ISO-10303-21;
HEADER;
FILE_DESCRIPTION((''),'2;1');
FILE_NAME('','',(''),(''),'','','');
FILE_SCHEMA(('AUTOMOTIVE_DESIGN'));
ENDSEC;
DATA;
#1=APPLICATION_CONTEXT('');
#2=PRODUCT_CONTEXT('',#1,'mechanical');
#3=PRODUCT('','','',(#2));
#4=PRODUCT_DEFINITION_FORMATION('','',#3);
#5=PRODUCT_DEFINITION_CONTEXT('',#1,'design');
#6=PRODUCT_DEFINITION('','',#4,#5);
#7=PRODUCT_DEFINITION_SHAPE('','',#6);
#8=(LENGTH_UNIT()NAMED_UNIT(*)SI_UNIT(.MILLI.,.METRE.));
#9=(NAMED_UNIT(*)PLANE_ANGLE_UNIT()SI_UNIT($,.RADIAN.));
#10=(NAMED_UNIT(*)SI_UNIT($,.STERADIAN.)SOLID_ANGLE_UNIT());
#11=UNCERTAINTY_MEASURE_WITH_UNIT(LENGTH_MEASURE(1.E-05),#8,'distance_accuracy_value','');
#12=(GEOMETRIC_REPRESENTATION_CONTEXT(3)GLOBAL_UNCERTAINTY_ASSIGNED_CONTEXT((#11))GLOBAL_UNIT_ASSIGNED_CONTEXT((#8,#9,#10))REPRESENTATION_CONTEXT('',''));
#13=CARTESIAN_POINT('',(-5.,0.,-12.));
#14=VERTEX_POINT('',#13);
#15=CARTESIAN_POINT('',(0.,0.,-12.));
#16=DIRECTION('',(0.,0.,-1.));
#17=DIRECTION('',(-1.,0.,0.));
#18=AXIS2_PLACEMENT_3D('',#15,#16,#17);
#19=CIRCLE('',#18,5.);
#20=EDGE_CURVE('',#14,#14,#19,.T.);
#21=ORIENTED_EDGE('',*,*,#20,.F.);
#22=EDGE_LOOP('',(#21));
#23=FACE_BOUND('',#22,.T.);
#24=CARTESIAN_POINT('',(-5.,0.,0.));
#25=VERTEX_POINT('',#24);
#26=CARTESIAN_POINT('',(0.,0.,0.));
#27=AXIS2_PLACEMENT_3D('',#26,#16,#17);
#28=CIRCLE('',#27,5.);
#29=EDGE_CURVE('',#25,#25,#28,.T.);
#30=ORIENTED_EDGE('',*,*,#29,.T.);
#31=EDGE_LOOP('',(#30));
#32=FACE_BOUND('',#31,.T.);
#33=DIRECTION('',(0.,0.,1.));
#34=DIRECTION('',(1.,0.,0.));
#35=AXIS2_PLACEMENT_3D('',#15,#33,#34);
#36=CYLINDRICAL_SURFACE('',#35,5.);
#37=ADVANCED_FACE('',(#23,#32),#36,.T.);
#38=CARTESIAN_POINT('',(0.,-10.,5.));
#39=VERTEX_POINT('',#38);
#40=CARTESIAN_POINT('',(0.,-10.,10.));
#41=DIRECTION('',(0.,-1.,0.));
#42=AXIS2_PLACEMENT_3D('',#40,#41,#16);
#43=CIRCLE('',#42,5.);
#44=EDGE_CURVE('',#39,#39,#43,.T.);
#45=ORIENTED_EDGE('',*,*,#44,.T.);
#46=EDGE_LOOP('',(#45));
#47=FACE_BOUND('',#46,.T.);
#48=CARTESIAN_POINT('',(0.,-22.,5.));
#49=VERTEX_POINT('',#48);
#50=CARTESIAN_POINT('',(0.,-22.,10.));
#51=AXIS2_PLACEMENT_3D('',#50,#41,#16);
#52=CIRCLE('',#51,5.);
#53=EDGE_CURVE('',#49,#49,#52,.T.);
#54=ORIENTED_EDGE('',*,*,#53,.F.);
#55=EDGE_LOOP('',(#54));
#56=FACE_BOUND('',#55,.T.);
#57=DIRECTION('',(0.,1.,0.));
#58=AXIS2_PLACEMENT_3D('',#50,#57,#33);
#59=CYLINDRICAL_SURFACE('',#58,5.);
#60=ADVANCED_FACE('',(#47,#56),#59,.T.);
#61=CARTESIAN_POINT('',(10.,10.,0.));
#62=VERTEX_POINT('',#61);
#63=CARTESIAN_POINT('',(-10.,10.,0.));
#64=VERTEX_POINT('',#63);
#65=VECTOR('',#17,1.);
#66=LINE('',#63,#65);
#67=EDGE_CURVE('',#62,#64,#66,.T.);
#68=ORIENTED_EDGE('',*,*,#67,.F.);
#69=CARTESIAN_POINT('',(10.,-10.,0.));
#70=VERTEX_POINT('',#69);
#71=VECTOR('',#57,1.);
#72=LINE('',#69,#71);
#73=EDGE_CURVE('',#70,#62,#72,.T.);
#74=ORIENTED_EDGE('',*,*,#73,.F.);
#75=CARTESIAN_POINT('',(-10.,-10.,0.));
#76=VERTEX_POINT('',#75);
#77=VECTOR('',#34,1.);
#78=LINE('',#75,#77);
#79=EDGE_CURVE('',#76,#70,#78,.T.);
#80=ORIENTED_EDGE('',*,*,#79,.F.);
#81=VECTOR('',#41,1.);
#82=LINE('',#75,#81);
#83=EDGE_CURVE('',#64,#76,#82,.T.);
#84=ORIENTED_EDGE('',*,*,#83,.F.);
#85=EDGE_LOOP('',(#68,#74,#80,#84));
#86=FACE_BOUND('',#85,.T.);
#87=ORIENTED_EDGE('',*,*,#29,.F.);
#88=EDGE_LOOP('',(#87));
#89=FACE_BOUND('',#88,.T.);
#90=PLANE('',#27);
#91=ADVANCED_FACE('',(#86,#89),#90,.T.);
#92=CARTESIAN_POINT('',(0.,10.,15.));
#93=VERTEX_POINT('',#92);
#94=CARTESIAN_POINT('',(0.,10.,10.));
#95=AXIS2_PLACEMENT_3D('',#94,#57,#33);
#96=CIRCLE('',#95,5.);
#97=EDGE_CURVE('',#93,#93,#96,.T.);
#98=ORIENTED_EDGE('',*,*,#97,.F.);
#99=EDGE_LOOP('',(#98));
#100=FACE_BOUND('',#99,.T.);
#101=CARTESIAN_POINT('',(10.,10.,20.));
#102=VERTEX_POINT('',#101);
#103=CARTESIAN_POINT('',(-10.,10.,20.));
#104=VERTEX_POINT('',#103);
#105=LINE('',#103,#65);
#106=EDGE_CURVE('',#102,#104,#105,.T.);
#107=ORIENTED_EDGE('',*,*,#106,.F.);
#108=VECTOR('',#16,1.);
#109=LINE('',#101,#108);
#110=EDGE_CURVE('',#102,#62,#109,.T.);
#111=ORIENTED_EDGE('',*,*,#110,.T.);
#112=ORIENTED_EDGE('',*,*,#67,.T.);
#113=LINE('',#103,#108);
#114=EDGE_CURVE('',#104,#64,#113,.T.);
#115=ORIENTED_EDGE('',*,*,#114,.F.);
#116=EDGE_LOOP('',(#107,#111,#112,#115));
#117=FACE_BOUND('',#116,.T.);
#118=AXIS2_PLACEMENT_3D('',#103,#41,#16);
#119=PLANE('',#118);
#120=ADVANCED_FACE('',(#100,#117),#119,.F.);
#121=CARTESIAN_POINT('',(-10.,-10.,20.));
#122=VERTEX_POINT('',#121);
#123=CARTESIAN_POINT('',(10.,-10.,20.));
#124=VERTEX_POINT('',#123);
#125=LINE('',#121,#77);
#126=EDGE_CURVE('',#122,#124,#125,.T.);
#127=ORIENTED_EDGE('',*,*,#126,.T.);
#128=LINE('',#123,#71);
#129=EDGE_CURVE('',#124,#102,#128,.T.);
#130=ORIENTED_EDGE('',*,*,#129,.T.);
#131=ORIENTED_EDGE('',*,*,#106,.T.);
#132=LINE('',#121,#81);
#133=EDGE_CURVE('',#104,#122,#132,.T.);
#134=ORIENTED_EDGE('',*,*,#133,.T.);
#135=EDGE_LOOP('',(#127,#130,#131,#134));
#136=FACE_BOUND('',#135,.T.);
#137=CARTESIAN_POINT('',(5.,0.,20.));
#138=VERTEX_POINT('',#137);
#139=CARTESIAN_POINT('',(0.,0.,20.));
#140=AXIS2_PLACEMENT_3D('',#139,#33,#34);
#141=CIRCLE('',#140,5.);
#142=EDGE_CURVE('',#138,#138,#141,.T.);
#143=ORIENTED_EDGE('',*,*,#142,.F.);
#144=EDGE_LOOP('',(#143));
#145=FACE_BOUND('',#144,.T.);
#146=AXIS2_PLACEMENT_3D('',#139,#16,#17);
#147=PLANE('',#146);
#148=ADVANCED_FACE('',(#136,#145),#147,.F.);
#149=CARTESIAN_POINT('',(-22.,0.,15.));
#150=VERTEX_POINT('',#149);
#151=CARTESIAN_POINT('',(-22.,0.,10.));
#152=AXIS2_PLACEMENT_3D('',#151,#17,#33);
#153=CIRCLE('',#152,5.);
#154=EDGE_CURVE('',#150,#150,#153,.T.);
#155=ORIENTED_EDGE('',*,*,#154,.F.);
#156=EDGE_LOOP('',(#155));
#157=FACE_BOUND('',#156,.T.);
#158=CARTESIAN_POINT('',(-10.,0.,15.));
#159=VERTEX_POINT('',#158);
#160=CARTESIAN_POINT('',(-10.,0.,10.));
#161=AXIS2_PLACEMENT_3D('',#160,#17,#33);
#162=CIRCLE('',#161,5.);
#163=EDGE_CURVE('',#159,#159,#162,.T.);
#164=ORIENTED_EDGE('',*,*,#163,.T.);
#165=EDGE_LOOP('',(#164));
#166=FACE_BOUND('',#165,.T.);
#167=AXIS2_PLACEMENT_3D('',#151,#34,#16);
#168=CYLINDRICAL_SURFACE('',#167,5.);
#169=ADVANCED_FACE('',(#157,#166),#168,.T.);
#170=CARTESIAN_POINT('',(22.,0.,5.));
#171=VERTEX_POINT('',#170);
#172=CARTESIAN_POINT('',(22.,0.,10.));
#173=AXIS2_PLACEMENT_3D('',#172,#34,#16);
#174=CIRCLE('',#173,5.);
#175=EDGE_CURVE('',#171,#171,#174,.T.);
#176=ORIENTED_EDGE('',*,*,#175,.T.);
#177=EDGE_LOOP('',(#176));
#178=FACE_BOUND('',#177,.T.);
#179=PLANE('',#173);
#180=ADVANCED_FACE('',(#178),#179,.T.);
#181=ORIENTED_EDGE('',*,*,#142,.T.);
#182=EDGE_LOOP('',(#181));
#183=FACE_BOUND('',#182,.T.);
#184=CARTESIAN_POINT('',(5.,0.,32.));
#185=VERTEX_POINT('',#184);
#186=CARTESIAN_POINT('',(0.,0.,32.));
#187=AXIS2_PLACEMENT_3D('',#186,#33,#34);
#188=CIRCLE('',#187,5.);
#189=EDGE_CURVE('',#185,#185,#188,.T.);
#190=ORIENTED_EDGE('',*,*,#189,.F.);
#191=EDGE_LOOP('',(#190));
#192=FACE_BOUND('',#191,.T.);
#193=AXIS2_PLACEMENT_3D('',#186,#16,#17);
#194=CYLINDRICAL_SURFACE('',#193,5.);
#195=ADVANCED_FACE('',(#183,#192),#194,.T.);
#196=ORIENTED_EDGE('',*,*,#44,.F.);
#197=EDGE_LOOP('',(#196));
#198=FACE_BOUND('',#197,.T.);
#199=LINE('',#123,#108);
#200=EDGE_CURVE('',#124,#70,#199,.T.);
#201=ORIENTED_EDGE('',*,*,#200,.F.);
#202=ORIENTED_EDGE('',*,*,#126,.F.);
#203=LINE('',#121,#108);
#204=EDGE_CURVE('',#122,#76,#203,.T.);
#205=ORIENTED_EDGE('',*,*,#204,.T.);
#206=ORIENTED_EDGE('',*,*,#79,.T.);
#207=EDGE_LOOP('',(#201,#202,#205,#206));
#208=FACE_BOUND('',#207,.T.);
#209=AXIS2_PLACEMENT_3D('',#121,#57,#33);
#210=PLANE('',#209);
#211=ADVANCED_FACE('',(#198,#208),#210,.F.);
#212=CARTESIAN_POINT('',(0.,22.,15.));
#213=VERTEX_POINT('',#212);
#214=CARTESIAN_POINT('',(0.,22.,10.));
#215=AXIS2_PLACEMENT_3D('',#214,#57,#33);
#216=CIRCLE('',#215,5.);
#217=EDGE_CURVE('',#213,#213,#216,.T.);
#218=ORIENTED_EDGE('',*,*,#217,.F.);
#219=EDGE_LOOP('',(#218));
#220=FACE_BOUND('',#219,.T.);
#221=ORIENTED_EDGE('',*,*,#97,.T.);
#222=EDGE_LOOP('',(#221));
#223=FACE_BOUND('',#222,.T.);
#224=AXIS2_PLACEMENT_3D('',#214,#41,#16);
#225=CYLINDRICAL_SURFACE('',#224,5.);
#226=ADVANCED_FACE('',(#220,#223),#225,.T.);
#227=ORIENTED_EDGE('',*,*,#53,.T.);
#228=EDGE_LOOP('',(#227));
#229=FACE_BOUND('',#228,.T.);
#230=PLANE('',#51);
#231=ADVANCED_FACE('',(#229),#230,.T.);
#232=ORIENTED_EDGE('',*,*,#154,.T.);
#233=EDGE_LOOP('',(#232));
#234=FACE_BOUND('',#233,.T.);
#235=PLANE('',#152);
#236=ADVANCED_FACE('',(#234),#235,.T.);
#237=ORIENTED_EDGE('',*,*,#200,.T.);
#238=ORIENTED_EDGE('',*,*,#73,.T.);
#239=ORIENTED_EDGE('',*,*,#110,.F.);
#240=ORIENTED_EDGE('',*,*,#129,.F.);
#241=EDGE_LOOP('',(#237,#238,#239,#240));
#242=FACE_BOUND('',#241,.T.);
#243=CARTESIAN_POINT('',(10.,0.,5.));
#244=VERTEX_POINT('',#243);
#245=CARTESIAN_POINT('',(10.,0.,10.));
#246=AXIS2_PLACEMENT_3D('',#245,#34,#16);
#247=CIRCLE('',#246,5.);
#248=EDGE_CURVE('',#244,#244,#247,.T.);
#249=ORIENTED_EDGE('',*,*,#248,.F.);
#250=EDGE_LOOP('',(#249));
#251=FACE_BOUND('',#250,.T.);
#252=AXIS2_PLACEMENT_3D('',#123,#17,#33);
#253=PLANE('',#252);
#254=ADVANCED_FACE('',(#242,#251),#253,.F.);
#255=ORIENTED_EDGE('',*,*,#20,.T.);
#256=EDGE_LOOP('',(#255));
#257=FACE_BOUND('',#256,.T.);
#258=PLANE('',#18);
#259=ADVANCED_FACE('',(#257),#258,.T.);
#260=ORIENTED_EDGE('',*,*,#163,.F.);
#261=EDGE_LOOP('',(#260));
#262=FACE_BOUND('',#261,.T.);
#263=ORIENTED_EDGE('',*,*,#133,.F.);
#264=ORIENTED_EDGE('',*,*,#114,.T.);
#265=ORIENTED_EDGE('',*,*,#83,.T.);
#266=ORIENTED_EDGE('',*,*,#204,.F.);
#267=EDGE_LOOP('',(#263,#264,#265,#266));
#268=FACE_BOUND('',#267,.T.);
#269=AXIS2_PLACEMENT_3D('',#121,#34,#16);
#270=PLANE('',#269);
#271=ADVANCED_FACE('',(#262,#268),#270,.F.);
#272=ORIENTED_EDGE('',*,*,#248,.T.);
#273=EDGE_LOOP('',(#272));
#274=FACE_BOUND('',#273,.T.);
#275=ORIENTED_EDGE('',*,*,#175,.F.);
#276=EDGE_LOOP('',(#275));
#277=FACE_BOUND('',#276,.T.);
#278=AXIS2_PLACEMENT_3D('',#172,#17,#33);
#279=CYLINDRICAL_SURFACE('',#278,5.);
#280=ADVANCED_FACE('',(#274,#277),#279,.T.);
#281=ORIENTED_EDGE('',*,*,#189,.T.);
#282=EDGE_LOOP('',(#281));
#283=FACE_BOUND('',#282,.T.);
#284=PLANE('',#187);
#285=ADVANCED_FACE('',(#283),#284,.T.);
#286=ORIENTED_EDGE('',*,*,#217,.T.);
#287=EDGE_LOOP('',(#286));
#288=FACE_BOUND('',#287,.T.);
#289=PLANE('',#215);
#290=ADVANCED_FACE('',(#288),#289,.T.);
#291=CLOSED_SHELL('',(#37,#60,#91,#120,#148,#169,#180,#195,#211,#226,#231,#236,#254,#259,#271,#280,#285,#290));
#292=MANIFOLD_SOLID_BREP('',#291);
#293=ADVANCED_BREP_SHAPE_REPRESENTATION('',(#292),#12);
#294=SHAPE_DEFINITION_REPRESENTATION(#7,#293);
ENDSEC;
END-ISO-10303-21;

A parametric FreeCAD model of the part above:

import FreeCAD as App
import Part
import Sketcher
from FreeCAD import Vector
Q = App.Units.Quantity


def add_polygon(sketch, points):
    """Adds a closed chain of lines whose ends are joined by coincident constraints."""
    first, n = sketch.GeometryCount, len(points)
    for a, b in zip(points, points[1:] + points[:1]):
        sketch.addGeometry(Part.LineSegment(App.Vector(*a, 0), App.Vector(*b, 0)), False)
    for i in range(n):
        sketch.addConstraint(Sketcher.Constraint("Coincident", first + i, 2, first + (i + 1) % n, 1))

doc = App.newDocument("Part")
params = doc.addObject("Spreadsheet::Sheet", "Params")
for row, (alias, value) in enumerate([
    ("sketch1_width", "20 mm"),
    ("pad1_length", "20 mm"),
    ("sketch2_diameter", "10 mm"),
    ("pad2_length", "12 mm"),
    ("sketch3_diameter", "10 mm"),
    ("pad3_length", "12 mm"),
    ("sketch4_diameter", "10 mm"),
    ("pad4_length", "12 mm"),
    ("sketch5_diameter", "10 mm"),
    ("pad5_length", "12 mm"),
    ("sketch6_diameter", "10 mm"),
    ("pad6_length", "12 mm"),
    ("sketch7_diameter", "10 mm"),
    ("pad7_length", "12 mm"),
], start=1):
    params.set(f"A{row}", alias)
    params.set(f"B{row}", "=" + value)
    params.setAlias(f"B{row}", alias)

body = doc.addObject("PartDesign::Body", "Body")

# Sketch on XY plane
sketch1 = body.newObject("Sketcher::SketchObject", "Sketch")
sketch1.AttachmentSupport = (doc.getObject("XY_Plane"), [""])
sketch1.MapMode = "FlatFace"
add_polygon(sketch1, [(-10, 10), (-10, -10), (10, -10), (10, 10)])  # lines 0-3
sketch1.addConstraint([
    Sketcher.Constraint("Vertical", 0),
    Sketcher.Constraint("Horizontal", 1),
    Sketcher.Constraint("Vertical", 2),
    Sketcher.Constraint("Horizontal", 3),
    Sketcher.Constraint("Symmetric", 0, 2, 2, 2, -1, 1),
    Sketcher.Constraint("Equal", 3, 0),
    Sketcher.Constraint("DistanceX", 1, 1, 1, 2, Q("20 mm")),
])
sketch1.setExpression("Constraints[10]", "Params.sketch1_width")
pad1 = body.newObject("PartDesign::Pad", "Pad")
pad1.Profile = sketch1
pad1.setExpression("Length", "Params.pad1_length")

# Sketch on YZ plane
sketch2 = body.newObject("Sketcher::SketchObject", "Sketch001")
sketch2.AttachmentSupport = (doc.getObject("YZ_Plane"), [""])
sketch2.MapMode = "FlatFace"
sketch2.AttachmentOffset = App.Placement(Vector(0, 0, 10), App.Rotation())
sketch2.addGeometry(Part.Circle(Vector(0, 10, 0), Vector(0, 0, 1), 5), False)
sketch2.addConstraint([
    Sketcher.Constraint("PointOnObject", 0, 3, -2),
    Sketcher.Constraint("Diameter", 0, Q("10 mm")),
    Sketcher.Constraint("DistanceY", -1, 1, 0, 3, Q("10 mm")),
])
sketch2.setExpression("Constraints[1]", "Params.sketch2_diameter")
pad2 = body.newObject("PartDesign::Pad", "Pad001")
pad2.Profile = sketch2
pad2.setExpression("Length", "Params.pad2_length")

# Sketch on XZ plane
sketch3 = body.newObject("Sketcher::SketchObject", "Sketch002")
sketch3.AttachmentSupport = (doc.getObject("XZ_Plane"), [""])
sketch3.MapMode = "FlatFace"
sketch3.AttachmentOffset = App.Placement(Vector(0, 0, -10), App.Rotation())
sketch3.addGeometry(Part.Circle(Vector(0, 10, 0), Vector(0, 0, 1), 5), False)
sketch3.addConstraint([
    Sketcher.Constraint("PointOnObject", 0, 3, -2),
    Sketcher.Constraint("Diameter", 0, Q("10 mm")),
    Sketcher.Constraint("DistanceY", -1, 1, 0, 3, Q("10 mm")),
])
sketch3.setExpression("Constraints[1]", "Params.sketch3_diameter")
pad3 = body.newObject("PartDesign::Pad", "Pad002")
pad3.Profile = sketch3
pad3.setExpression("Length", "Params.pad3_length")
pad3.Reversed = True

# Sketch on YZ plane
sketch4 = body.newObject("Sketcher::SketchObject", "Sketch003")
sketch4.AttachmentSupport = (doc.getObject("YZ_Plane"), [""])
sketch4.MapMode = "FlatFace"
sketch4.AttachmentOffset = App.Placement(Vector(0, 0, -22), App.Rotation())
sketch4.addGeometry(Part.Circle(Vector(0, 10, 0), Vector(0, 0, 1), 5), False)
sketch4.addConstraint([
    Sketcher.Constraint("PointOnObject", 0, 3, -2),
    Sketcher.Constraint("Diameter", 0, Q("10 mm")),
    Sketcher.Constraint("DistanceY", -1, 1, 0, 3, Q("10 mm")),
])
sketch4.setExpression("Constraints[1]", "Params.sketch4_diameter")
pad4 = body.newObject("PartDesign::Pad", "Pad003")
pad4.Profile = sketch4
pad4.setExpression("Length", "Params.pad4_length")

# Sketch on XZ plane
sketch5 = body.newObject("Sketcher::SketchObject", "Sketch004")
sketch5.AttachmentSupport = (doc.getObject("XZ_Plane"), [""])
sketch5.MapMode = "FlatFace"
sketch5.AttachmentOffset = App.Placement(Vector(0, 0, 22), App.Rotation())
sketch5.addGeometry(Part.Circle(Vector(0, 10, 0), Vector(0, 0, 1), 5), False)
sketch5.addConstraint([
    Sketcher.Constraint("PointOnObject", 0, 3, -2),
    Sketcher.Constraint("Diameter", 0, Q("10 mm")),
    Sketcher.Constraint("DistanceY", -1, 1, 0, 3, Q("10 mm")),
])
sketch5.setExpression("Constraints[1]", "Params.sketch5_diameter")
pad5 = body.newObject("PartDesign::Pad", "Pad004")
pad5.Profile = sketch5
pad5.setExpression("Length", "Params.pad5_length")
pad5.Reversed = True

# Sketch on XY plane
sketch6 = body.newObject("Sketcher::SketchObject", "Sketch005")
sketch6.AttachmentSupport = (doc.getObject("XY_Plane"), [""])
sketch6.MapMode = "FlatFace"
sketch6.addGeometry(Part.Circle(Vector(0, 0, 0), Vector(0, 0, 1), 5), False)
sketch6.addConstraint([
    Sketcher.Constraint("Coincident", 0, 3, -1, 1),
    Sketcher.Constraint("Diameter", 0, Q("10 mm")),
])
sketch6.setExpression("Constraints[1]", "Params.sketch6_diameter")
pad6 = body.newObject("PartDesign::Pad", "Pad005")
pad6.Profile = sketch6
pad6.setExpression("Length", "Params.pad6_length")
pad6.Reversed = True

# Sketch on XY plane
sketch7 = body.newObject("Sketcher::SketchObject", "Sketch006")
sketch7.AttachmentSupport = (doc.getObject("XY_Plane"), [""])
sketch7.MapMode = "FlatFace"
sketch7.AttachmentOffset = App.Placement(Vector(0, 0, 32), App.Rotation())
sketch7.addGeometry(Part.Circle(Vector(0, 0, 0), Vector(0, 0, 1), 5), False)
sketch7.addConstraint([
    Sketcher.Constraint("Coincident", 0, 3, -1, 1),
    Sketcher.Constraint("Diameter", 0, Q("10 mm")),
])
sketch7.setExpression("Constraints[1]", "Params.sketch7_diameter")
pad7 = body.newObject("PartDesign::Pad", "Pad006")
pad7.Profile = sketch7
pad7.setExpression("Length", "Params.pad7_length")
pad7.Reversed = True

doc.recompute()
